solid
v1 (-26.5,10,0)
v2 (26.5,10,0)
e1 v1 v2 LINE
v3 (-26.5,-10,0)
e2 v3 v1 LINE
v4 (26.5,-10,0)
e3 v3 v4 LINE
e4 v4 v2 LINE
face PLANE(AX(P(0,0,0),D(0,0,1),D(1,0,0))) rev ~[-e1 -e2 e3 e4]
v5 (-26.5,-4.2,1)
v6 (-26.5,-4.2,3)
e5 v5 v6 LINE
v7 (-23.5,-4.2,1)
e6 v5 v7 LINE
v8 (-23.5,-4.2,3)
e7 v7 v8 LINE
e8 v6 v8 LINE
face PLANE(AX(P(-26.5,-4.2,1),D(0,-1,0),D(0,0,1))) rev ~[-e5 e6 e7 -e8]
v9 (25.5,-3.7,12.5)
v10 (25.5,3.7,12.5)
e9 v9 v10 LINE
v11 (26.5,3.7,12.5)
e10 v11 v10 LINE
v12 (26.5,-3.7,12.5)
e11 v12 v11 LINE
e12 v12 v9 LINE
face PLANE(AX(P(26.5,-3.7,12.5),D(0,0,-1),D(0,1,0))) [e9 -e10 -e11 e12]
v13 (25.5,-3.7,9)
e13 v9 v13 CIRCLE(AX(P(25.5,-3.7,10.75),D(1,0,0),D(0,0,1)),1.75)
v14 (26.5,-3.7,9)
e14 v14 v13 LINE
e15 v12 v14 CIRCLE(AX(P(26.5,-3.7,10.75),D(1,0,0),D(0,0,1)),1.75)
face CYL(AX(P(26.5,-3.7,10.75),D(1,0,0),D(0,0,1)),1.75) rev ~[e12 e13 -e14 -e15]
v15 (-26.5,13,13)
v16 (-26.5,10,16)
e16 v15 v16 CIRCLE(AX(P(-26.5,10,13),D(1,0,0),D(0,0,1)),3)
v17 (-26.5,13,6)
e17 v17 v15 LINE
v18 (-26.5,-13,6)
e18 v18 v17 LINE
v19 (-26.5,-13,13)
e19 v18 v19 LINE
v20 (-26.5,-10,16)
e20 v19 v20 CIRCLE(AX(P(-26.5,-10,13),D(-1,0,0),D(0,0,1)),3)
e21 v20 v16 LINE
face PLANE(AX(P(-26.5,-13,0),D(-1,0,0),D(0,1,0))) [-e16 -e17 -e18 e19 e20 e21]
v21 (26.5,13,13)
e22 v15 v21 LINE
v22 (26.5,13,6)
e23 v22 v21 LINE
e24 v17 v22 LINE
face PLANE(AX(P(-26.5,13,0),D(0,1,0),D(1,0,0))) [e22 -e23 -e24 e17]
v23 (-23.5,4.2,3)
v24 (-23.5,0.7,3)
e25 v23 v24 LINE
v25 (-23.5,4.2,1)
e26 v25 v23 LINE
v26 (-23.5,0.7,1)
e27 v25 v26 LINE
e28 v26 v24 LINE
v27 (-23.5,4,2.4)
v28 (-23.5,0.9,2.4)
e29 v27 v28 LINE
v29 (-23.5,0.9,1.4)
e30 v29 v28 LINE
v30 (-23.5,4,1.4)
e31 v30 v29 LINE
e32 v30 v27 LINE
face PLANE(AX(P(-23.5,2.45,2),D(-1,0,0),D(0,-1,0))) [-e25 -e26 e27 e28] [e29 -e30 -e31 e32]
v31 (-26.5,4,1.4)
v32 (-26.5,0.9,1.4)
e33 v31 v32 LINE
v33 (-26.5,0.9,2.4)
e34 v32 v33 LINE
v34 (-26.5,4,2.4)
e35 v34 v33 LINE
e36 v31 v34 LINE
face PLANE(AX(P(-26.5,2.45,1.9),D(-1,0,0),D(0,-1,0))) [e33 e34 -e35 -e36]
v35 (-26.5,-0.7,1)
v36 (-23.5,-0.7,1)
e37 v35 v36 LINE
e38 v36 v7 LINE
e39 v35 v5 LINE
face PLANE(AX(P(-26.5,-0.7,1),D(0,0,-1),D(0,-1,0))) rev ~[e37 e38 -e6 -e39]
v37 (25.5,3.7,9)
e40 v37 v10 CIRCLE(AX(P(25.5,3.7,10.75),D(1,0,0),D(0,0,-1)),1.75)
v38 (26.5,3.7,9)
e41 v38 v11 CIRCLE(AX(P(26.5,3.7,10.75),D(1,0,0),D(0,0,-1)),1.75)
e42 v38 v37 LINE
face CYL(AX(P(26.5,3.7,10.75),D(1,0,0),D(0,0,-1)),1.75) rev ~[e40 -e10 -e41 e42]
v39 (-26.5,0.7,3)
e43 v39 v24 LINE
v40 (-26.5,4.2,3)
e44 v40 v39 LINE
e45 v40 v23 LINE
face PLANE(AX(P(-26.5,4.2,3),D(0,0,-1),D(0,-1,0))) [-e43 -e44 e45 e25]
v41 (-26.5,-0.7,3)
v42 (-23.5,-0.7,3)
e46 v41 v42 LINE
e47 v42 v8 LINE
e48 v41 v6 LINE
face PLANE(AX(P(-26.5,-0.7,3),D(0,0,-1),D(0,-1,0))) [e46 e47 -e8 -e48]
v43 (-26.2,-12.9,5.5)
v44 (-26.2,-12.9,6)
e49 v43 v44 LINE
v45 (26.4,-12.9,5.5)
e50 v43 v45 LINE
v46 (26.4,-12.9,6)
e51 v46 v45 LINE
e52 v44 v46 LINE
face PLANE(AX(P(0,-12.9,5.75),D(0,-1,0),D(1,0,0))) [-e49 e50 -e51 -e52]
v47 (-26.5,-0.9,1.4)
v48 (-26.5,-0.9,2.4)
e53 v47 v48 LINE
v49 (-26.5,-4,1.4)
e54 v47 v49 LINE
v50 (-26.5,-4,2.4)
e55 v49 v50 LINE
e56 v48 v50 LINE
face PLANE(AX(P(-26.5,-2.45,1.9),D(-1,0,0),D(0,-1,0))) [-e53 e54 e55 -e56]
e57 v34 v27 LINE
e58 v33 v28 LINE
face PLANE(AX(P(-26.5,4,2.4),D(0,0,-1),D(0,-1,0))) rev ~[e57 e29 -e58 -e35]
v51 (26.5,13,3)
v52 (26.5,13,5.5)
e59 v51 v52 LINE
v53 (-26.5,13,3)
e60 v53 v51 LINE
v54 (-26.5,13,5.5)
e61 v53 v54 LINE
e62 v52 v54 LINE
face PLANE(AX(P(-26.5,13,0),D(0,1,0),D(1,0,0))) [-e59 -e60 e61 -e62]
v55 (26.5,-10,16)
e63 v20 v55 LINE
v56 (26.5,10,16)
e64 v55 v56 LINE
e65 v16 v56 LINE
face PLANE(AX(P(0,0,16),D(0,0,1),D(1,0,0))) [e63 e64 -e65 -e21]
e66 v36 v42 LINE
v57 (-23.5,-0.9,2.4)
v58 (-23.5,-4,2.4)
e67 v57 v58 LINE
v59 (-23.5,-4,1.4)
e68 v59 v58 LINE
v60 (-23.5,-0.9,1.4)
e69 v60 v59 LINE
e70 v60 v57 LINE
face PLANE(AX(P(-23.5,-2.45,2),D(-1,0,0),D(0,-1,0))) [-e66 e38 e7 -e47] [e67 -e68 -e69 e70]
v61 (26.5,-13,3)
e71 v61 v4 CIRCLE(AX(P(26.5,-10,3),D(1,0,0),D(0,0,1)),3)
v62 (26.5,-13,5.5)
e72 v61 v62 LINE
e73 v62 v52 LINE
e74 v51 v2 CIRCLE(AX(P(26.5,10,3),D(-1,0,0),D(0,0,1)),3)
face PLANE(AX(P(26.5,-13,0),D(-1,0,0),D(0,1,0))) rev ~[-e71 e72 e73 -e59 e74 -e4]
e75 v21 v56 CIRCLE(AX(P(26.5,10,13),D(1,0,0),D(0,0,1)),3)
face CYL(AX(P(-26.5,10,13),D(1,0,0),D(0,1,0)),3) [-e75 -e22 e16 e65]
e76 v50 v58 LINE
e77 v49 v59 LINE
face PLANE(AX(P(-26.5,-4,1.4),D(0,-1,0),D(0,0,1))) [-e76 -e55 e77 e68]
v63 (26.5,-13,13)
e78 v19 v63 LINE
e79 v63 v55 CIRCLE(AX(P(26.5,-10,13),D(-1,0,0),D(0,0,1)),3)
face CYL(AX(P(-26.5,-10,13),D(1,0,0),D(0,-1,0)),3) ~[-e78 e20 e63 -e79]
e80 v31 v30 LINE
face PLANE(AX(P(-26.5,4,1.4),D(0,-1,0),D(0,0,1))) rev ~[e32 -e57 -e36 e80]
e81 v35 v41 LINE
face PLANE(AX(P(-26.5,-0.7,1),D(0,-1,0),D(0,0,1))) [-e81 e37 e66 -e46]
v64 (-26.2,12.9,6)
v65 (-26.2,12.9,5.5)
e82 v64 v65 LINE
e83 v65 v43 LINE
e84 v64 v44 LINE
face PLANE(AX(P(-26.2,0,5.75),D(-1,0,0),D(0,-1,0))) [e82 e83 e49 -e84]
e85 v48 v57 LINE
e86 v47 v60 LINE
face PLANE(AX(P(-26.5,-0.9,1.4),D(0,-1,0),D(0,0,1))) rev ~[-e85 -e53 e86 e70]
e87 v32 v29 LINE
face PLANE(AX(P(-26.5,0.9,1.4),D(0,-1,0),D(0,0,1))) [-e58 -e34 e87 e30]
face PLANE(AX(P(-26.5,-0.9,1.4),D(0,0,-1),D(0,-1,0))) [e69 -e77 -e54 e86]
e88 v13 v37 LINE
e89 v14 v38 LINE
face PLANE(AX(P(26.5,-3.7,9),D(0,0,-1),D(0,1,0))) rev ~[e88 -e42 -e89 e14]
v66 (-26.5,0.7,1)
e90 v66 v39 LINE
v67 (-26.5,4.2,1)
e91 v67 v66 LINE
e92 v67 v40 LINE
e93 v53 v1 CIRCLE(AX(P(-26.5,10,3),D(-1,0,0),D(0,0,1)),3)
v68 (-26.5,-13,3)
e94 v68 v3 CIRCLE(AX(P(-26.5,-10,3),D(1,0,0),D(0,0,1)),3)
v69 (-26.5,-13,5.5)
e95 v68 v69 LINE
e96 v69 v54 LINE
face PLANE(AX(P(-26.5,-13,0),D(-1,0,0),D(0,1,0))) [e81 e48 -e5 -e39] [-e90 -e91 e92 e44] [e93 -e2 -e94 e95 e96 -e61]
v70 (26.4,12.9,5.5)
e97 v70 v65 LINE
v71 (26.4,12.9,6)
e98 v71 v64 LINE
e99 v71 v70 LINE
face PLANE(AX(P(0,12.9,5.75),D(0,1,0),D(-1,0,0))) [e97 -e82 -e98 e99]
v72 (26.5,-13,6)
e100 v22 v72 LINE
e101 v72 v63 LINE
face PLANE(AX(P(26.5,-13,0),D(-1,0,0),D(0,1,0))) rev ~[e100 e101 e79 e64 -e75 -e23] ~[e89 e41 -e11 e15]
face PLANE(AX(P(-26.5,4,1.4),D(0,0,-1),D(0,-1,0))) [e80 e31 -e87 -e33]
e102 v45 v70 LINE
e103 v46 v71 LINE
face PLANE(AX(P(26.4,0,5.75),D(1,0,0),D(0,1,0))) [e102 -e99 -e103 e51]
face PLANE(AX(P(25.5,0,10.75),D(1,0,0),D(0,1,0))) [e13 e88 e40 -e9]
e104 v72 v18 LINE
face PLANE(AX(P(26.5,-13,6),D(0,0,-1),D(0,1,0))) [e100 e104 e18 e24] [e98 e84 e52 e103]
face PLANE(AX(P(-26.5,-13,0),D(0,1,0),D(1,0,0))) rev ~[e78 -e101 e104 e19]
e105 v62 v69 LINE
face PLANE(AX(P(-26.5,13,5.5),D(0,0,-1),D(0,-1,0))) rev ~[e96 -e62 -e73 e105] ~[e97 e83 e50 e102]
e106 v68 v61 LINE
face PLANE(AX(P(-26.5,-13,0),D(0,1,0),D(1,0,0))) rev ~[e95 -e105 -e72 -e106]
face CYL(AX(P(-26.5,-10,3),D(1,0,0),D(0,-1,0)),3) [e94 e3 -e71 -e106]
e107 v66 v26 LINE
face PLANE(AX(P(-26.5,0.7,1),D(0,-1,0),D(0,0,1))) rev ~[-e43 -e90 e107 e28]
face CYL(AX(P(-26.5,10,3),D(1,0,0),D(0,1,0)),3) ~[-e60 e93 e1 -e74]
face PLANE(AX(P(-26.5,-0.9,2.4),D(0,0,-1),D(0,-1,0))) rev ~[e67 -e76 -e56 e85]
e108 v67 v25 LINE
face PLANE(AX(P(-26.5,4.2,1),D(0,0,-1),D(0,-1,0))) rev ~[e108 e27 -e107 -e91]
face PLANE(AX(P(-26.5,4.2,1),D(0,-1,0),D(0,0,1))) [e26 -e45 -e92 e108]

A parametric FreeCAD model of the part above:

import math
import FreeCAD as App
import Part
import Sketcher
from FreeCAD import Vector


def edges_at(feature, points):
    """Names of the edges that pass closest to the given points."""
    edges = feature.Shape.Edges
    near = lambda p: min(range(len(edges)), key=lambda i: edges[i].distToShape(Part.Vertex(*p))[0])
    return sorted({f"Edge{near(p) + 1}" for p in points})


def add_polygon(sketch, points):
    """Adds a closed chain of lines whose ends are joined by coincident constraints."""
    first, n = sketch.GeometryCount, len(points)
    for a, b in zip(points, points[1:] + points[:1]):
        sketch.addGeometry(Part.LineSegment(App.Vector(*a, 0), App.Vector(*b, 0)), False)
    for i in range(n):
        sketch.addConstraint(Sketcher.Constraint("Coincident", first + i, 2, first + (i + 1) % n, 1))

doc = App.newDocument("Part")
body = doc.addObject("PartDesign::Body", "Body")

# Sketch on XY plane
sketch1 = body.newObject("Sketcher::SketchObject", "Sketch")
sketch1.AttachmentSupport = (doc.getObject("XY_Plane"), [""])
sketch1.MapMode = "FlatFace"
add_polygon(sketch1, [(-26, 13), (-26, -13), (26, -13), (26, 13)])  # lines 0-3
sketch1.addConstraint([
    Sketcher.Constraint("Vertical", 0),
    Sketcher.Constraint("Horizontal", 1),
    Sketcher.Constraint("Vertical", 2),
    Sketcher.Constraint("Horizontal", 3),
    Sketcher.Constraint("Symmetric", 0, 2, 2, 2, -1, 1),
    Sketcher.Constraint("DistanceX", 1, 1, 1, 2, 53.0),
    Sketcher.Constraint("DistanceY", 0, 2, 0, 1, 26.0),
])
pad1 = body.newObject("PartDesign::Pad", "Pad")
pad1.Profile = sketch1
pad1.Length = 16
doc.recompute()

fillet = body.newObject("PartDesign::Fillet", "Fillet")
fillet.Base = (pad1, edges_at(pad1, [
    (0, -13, 16),
    (0, -13, 0),
    (0, 13, 16),
    (0, 13, 0),
]))
fillet.Radius = 3

# Sketch on YZ plane
sketch2 = body.newObject("Sketcher::SketchObject", "Sketch001")
sketch2.AttachmentSupport = (doc.getObject("YZ_Plane"), [""])
sketch2.MapMode = "FlatFace"
sketch2.AttachmentOffset = App.Placement(Vector(0, 0, -26.5), App.Rotation())
add_polygon(sketch2, [(4.2, 3), (4.2, 1), (0.7, 1), (0.7, 3)])  # lines 0-3
add_polygon(sketch2, [(-0.7, 3), (-0.7, 1), (-4.2, 1), (-4.2, 3)])  # lines 4-7
sketch2.addConstraint([
    Sketcher.Constraint("Vertical", 0),
    Sketcher.Constraint("Horizontal", 1),
    Sketcher.Constraint("Vertical", 2),
    Sketcher.Constraint("Horizontal", 3),
    Sketcher.Constraint("Vertical", 4),
    Sketcher.Constraint("Horizontal", 5),
    Sketcher.Constraint("Vertical", 6),
    Sketcher.Constraint("Horizontal", 7),
    Sketcher.Constraint("Symmetric", 1, 2, 4, 2, -2),
    Sketcher.Constraint("Symmetric", 3, 2, 6, 2, -2),
    Sketcher.Constraint("DistanceY", 0, 2, 0, 1, 2.0),
    Sketcher.Constraint("DistanceX", 1, 2, 1, 1, 3.5),
    Sketcher.Constraint("DistanceY", -1, 1, 0, 2, 1.0),
    Sketcher.Constraint("DistanceX", -1, 1, 0, 2, 4.2),
])
pocket1 = body.newObject("PartDesign::Pocket", "Pocket")
pocket1.Profile = sketch2
pocket1.Length = 3
pocket1.Reversed = True

# Sketch on YZ plane
sketch3 = body.newObject("Sketcher::SketchObject", "Sketch002")
sketch3.AttachmentSupport = (doc.getObject("YZ_Plane"), [""])
sketch3.MapMode = "FlatFace"
sketch3.AttachmentOffset = App.Placement(Vector(0, 0, -26.5), App.Rotation())
add_polygon(sketch3, [(13, 6), (13, 5.5), (-13, 5.5), (-13, 6)])  # lines 0-3
sketch3.addConstraint([
    Sketcher.Constraint("Vertical", 0),
    Sketcher.Constraint("Horizontal", 1),
    Sketcher.Constraint("Vertical", 2),
    Sketcher.Constraint("Horizontal", 3),
    Sketcher.Constraint("DistanceX", 1, 2, 1, 1, 26.0),
    Sketcher.Constraint("DistanceY", 0, 2, 0, 1, 0.5),
    Sketcher.Constraint("DistanceX", -1, 1, 0, 2, 13.0),
    Sketcher.Constraint("DistanceY", -1, 1, 2, 2, 6.0),
])
pocket2 = body.newObject("PartDesign::Pocket", "Pocket001")
pocket2.Profile = sketch3
pocket2.Length = 0.3
pocket2.Reversed = True

# Sketch on XZ plane
sketch4 = body.newObject("Sketcher::SketchObject", "Sketch003")
sketch4.AttachmentSupport = (doc.getObject("XZ_Plane"), [""])
sketch4.MapMode = "FlatFace"
sketch4.AttachmentOffset = App.Placement(Vector(0, 0, -13), App.Rotation())
add_polygon(sketch4, [(26.5, 6), (26.5, 5.5), (-26.5, 5.5), (-26.5, 6)])  # lines 0-3
sketch4.addConstraint([
    Sketcher.Constraint("Vertical", 0),
    Sketcher.Constraint("Horizontal", 1),
    Sketcher.Constraint("Vertical", 2),
    Sketcher.Constraint("Horizontal", 3),
    Sketcher.Constraint("DistanceX", 1, 2, 1, 1, 53.0),
    Sketcher.Constraint("DistanceY", 0, 2, 0, 1, 0.5),
    Sketcher.Constraint("DistanceY", -1, 1, 2, 2, 6.0),
    Sketcher.Constraint("DistanceX", -1, 1, 0, 2, 26.5),
])
pocket3 = body.newObject("PartDesign::Pocket", "Pocket002")
pocket3.Profile = sketch4
pocket3.Length = 0.1
pocket3.Reversed = True

# Sketch on YZ plane
sketch5 = body.newObject("Sketcher::SketchObject", "Sketch004")
sketch5.AttachmentSupport = (doc.getObject("YZ_Plane"), [""])
sketch5.MapMode = "FlatFace"
sketch5.AttachmentOffset = App.Placement(Vector(0, 0, 26.5), App.Rotation())
add_polygon(sketch5, [(-13, 6), (-13, 5.5), (13, 5.5), (13, 6)])  # lines 0-3
sketch5.addConstraint([
    Sketcher.Constraint("Vertical", 0),
    Sketcher.Constraint("Horizontal", 1),
    Sketcher.Constraint("Vertical", 2),
    Sketcher.Constraint("Horizontal", 3),
    Sketcher.Constraint("DistanceX", 1, 1, 1, 2, 26.0),
    Sketcher.Constraint("DistanceY", 0, 2, 0, 1, 0.5),
    Sketcher.Constraint("DistanceX", 0, 2, -1, 1, 13.0),
    Sketcher.Constraint("DistanceY", -1, 1, 2, 2, 6.0),
])
pocket4 = body.newObject("PartDesign::Pocket", "Pocket003")
pocket4.Profile = sketch5
pocket4.Length = 0.1

# Sketch on XZ plane
sketch6 = body.newObject("Sketcher::SketchObject", "Sketch005")
sketch6.AttachmentSupport = (doc.getObject("XZ_Plane"), [""])
sketch6.MapMode = "FlatFace"
sketch6.AttachmentOffset = App.Placement(Vector(0, 0, 13), App.Rotation())
add_polygon(sketch6, [(-26.5, 6), (-26.5, 5.5), (26.5, 5.5), (26.5, 6)])  # lines 0-3
sketch6.addConstraint([
    Sketcher.Constraint("Vertical", 0),
    Sketcher.Constraint("Horizontal", 1),
    Sketcher.Constraint("Vertical", 2),
    Sketcher.Constraint("Horizontal", 3),
    Sketcher.Constraint("DistanceX", 1, 1, 1, 2, 53.0),
    Sketcher.Constraint("DistanceY", 0, 2, 0, 1, 0.5),
    Sketcher.Constraint("DistanceY", -1, 1, 2, 2, 6.0),
    Sketcher.Constraint("DistanceX", 0, 2, -1, 1, 26.5),
])
pocket5 = body.newObject("PartDesign::Pocket", "Pocket004")
pocket5.Profile = sketch6
pocket5.Length = 0.1

# Sketch on YZ plane
sketch7 = body.newObject("Sketcher::SketchObject", "Sketch006")
sketch7.AttachmentSupport = (doc.getObject("YZ_Plane"), [""])
sketch7.MapMode = "FlatFace"
sketch7.AttachmentOffset = App.Placement(Vector(0, 0, -26.5), App.Rotation())
add_polygon(sketch7, [(4, 2.4), (4, 1.4), (0.9, 1.4), (0.9, 2.4)])  # lines 0-3
add_polygon(sketch7, [(-0.9, 2.4), (-0.9, 1.4), (-4, 1.4), (-4, 2.4)])  # lines 4-7
sketch7.addConstraint([
    Sketcher.Constraint("Vertical", 0),
    Sketcher.Constraint("Horizontal", 1),
    Sketcher.Constraint("Vertical", 2),
    Sketcher.Constraint("Horizontal", 3),
    Sketcher.Constraint("Vertical", 4),
    Sketcher.Constraint("Horizontal", 5),
    Sketcher.Constraint("Vertical", 6),
    Sketcher.Constraint("Horizontal", 7),
    Sketcher.Constraint("Symmetric", 1, 2, 4, 2, -2),
    Sketcher.Constraint("Symmetric", 3, 2, 6, 2, -2),
    Sketcher.Constraint("DistanceY", 0, 2, 0, 1, 1.0),
    Sketcher.Constraint("DistanceX", 1, 2, 1, 1, 3.1),
    Sketcher.Constraint("DistanceX", -1, 1, 0, 2, 4.0),
    Sketcher.Constraint("DistanceY", -1, 1, 0, 2, 1.4),
])
pad2 = body.newObject("PartDesign::Pad", "Pad001")
pad2.Profile = sketch7
pad2.Length = 3

# Sketch on YZ plane
sketch8 = body.newObject("Sketcher::SketchObject", "Sketch007")
sketch8.AttachmentSupport = (doc.getObject("YZ_Plane"), [""])
sketch8.MapMode = "FlatFace"
sketch8.AttachmentOffset = App.Placement(Vector(0, 0, 26.5), App.Rotation())
sketch8.addGeometry([
    Part.ArcOfCircle(Part.Circle(Vector(-3.7, 10.8, 0), Vector(0, 0, 1), 1.8), math.radians(90), math.radians(270)),
    Part.LineSegment(Vector(-3.7, 9, 0), Vector(3.7, 9, 0)),
    Part.ArcOfCircle(Part.Circle(Vector(3.7, 10.8, 0), Vector(0, 0, 1), 1.8), math.radians(-90), math.radians(90)),
    Part.LineSegment(Vector(3.7, 12.5, 0), Vector(-3.7, 12.5, 0)),
], False)
sketch8.addConstraint([
    Sketcher.Constraint("Tangent", 0, 2, 1, 1),
    Sketcher.Constraint("Tangent", 1, 2, 2, 1),
    Sketcher.Constraint("Tangent", 2, 2, 3, 1),
    Sketcher.Constraint("Tangent", 3, 2, 0, 1),
    Sketcher.Constraint("Horizontal", 1),
    Sketcher.Constraint("Horizontal", 3),
    Sketcher.Constraint("Radius", 0, 1.75),
    Sketcher.Constraint("DistanceX", 1, 1, 1, 2, 7.4),
    Sketcher.Constraint("DistanceY", -1, 1, 0, 2, 9.0),
    Sketcher.Constraint("DistanceX", 0, 3, -1, 1, 3.7),
])
pocket6 = body.newObject("PartDesign::Pocket", "Pocket005")
pocket6.Profile = sketch8
pocket6.Length = 1

doc.recompute()
